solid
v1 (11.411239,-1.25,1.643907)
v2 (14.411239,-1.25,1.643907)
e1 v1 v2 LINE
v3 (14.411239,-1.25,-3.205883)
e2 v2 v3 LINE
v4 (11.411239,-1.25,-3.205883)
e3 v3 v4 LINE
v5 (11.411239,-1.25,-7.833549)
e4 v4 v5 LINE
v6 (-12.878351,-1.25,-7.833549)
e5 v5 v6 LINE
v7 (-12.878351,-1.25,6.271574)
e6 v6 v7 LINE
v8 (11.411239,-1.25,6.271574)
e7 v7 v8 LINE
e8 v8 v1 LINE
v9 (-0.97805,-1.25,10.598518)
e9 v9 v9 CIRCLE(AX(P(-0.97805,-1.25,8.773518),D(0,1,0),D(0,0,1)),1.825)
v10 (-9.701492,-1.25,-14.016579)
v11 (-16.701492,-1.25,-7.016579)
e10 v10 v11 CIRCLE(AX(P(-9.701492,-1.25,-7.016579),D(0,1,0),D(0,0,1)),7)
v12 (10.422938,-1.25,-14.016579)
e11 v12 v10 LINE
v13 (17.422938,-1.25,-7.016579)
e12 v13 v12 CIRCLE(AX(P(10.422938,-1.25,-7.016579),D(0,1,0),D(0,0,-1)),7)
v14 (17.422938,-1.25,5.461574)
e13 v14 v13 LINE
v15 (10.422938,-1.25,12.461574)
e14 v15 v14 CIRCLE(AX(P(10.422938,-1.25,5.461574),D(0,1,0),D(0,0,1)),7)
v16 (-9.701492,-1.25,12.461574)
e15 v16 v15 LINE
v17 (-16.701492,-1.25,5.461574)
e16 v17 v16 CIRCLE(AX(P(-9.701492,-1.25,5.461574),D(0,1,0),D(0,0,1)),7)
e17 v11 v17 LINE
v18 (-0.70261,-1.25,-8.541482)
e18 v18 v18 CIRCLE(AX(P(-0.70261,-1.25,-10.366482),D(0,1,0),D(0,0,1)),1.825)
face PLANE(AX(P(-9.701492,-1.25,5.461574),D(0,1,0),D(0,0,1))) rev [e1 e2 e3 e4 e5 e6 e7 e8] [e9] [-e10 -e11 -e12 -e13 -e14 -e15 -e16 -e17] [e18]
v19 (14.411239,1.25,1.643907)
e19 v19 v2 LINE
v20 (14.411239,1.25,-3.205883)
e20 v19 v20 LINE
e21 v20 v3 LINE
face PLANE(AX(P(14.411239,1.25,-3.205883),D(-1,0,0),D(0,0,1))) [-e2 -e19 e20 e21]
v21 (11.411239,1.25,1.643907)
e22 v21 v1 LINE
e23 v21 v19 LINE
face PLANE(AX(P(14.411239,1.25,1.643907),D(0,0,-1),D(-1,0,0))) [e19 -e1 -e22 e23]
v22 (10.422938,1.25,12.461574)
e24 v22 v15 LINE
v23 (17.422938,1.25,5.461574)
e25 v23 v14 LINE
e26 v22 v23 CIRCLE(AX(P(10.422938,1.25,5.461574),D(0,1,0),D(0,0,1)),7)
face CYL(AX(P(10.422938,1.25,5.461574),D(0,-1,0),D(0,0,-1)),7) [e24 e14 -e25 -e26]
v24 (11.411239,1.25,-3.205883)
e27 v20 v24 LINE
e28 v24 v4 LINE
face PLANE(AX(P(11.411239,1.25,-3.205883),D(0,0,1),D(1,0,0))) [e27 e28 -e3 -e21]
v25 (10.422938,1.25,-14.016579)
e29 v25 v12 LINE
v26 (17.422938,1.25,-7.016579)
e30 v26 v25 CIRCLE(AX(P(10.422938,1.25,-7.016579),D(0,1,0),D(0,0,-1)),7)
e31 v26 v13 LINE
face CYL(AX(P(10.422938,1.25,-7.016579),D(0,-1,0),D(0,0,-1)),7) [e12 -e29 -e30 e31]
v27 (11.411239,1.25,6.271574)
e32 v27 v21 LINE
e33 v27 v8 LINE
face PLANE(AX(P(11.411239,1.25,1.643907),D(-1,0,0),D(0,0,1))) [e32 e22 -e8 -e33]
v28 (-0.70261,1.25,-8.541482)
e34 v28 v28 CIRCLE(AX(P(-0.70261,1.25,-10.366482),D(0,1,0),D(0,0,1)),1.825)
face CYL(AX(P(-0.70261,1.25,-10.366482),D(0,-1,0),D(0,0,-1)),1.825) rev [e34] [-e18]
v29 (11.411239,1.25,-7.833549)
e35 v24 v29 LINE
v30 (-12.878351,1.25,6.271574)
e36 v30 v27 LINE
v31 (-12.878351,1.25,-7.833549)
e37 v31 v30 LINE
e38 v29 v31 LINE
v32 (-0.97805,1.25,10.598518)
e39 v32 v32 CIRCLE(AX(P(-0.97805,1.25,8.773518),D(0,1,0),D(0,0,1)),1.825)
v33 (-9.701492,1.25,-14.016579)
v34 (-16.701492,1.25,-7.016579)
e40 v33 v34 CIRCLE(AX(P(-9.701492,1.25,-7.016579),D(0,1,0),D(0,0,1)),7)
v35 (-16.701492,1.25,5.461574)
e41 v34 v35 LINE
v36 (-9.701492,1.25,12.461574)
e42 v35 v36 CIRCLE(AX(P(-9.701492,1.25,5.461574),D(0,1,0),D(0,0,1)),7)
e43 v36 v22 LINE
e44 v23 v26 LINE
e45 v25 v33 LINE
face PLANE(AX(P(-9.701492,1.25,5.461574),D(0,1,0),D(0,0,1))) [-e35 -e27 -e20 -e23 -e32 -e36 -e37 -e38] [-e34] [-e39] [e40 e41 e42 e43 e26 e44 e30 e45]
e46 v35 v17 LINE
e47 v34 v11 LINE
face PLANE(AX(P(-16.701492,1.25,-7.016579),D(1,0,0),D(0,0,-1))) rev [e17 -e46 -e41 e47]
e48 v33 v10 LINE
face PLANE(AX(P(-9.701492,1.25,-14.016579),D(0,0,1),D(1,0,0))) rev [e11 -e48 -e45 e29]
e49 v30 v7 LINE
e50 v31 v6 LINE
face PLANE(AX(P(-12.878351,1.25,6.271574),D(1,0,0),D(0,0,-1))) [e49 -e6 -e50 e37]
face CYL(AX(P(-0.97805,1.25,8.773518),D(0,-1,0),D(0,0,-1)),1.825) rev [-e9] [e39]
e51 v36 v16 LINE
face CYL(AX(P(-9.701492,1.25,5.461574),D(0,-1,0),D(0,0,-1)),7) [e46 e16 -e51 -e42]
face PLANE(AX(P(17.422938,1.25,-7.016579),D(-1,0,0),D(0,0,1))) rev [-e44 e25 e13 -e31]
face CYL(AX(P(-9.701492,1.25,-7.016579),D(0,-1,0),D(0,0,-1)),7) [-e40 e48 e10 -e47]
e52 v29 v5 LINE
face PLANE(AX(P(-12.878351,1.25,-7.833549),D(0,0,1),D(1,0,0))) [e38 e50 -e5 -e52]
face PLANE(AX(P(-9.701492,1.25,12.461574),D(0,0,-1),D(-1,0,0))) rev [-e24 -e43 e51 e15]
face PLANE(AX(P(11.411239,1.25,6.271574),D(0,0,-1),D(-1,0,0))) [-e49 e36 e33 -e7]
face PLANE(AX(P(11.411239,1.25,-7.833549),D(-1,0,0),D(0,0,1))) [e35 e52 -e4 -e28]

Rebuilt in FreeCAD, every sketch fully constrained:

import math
import FreeCAD as App
import Part
import Sketcher
Q = App.Units.Quantity


def add_polygon(sketch, points):
    """Adds a closed chain of lines whose ends are joined by coincident constraints."""
    first, n = sketch.GeometryCount, len(points)
    for a, b in zip(points, points[1:] + points[:1]):
        sketch.addGeometry(Part.LineSegment(App.Vector(*a, 0), App.Vector(*b, 0)), False)
    for i in range(n):
        sketch.addConstraint(Sketcher.Constraint("Coincident", first + i, 2, first + (i + 1) % n, 1))

doc = App.newDocument("Part")
body = doc.addObject("PartDesign::Body", "Body")

sketch1 = body.newObject("Sketcher::SketchObject", "Sketch")
sketch1.AttachmentSupport = (doc.getObject("XZ_Plane"), [""])
sketch1.MapMode = "FlatFace"
sketch1.addGeometry(Part.LineSegment(App.Vector(10.4, -14, 0), App.Vector(-9.7, -14, 0)), False)
sketch1.addGeometry(Part.ArcOfCircle(Part.Circle(App.Vector(-9.7, -7, 0), App.Vector(0, 0, 1), 7), math.radians(180), math.radians(270)), False)
sketch1.addGeometry(Part.LineSegment(App.Vector(-16.7, -7, 0), App.Vector(-16.7, 5.5, 0)), False)
sketch1.addGeometry(Part.ArcOfCircle(Part.Circle(App.Vector(-9.7, 5.5, 0), App.Vector(0, 0, 1), 7), math.radians(90), math.radians(180)), False)
sketch1.addGeometry(Part.LineSegment(App.Vector(-9.7, 12.5, 0), App.Vector(10.4, 12.5, 0)), False)
sketch1.addGeometry(Part.ArcOfCircle(Part.Circle(App.Vector(10.4, 5.5, 0), App.Vector(0, 0, 1), 7), math.radians(0), math.radians(90)), False)
sketch1.addGeometry(Part.LineSegment(App.Vector(17.4, 5.5, 0), App.Vector(17.4, -7, 0)), False)
sketch1.addGeometry(Part.ArcOfCircle(Part.Circle(App.Vector(10.4, -7, 0), App.Vector(0, 0, 1), 7), math.radians(-90), math.radians(0)), False)
sketch1.addGeometry(Part.Circle(App.Vector(-1, 8.8, 0), App.Vector(0, 0, 1), 1.8), False)
add_polygon(sketch1, [(-12.9, -7.8), (11.4, -7.8), (11.4, -3.2), (14.4, -3.2), (14.4, 1.6), (11.4, 1.6), (11.4, 6.3), (-12.9, 6.3)])
sketch1.addGeometry(Part.Circle(App.Vector(-0.7, -10.4, 0), App.Vector(0, 0, 1), 1.8), False)
sketch1.addConstraint([
    Sketcher.Constraint("Tangent", 0, 2, 1, 2),
    Sketcher.Constraint("Tangent", 1, 1, 2, 1),
    Sketcher.Constraint("Tangent", 2, 2, 3, 2),
    Sketcher.Constraint("Tangent", 3, 1, 4, 1),
    Sketcher.Constraint("Tangent", 4, 2, 5, 2),
    Sketcher.Constraint("Tangent", 5, 1, 6, 1),
    Sketcher.Constraint("Tangent", 6, 2, 7, 2),
    Sketcher.Constraint("Tangent", 7, 1, 0, 1),
    Sketcher.Constraint("Horizontal", 0),
    Sketcher.Constraint("Vertical", 2),
    Sketcher.Constraint("Horizontal", 4),
    Sketcher.Constraint("Vertical", 6),
    Sketcher.Constraint("Horizontal", 9),
    Sketcher.Constraint("Vertical", 10),
    Sketcher.Constraint("Horizontal", 11),
    Sketcher.Constraint("Vertical", 12),
    Sketcher.Constraint("Horizontal", 13),
    Sketcher.Constraint("Vertical", 14),
    Sketcher.Constraint("Horizontal", 15),
    Sketcher.Constraint("Vertical", 16),
    Sketcher.Constraint("Equal", 1, 3),
    Sketcher.Constraint("Equal", 3, 5),
    Sketcher.Constraint("Equal", 5, 7),
    Sketcher.Constraint("Equal", 8, 17),
    Sketcher.Constraint("Vertical", 10, 2, 13, 2),
    Sketcher.Constraint("Equal", 10, 14),
    Sketcher.Constraint("Radius", 1, Q("7 mm")),
    Sketcher.Constraint("Diameter", 8, Q("3.65 mm")),
    Sketcher.Constraint("DistanceX", 11, 1, 11, 2, Q("3 mm")),
    Sketcher.Constraint("DistanceY", 17, 3, 8, 3, Q("19.14 mm")),
    Sketcher.Constraint("DistanceY", 5, 3, 14, 2, Q("0.81 mm")),
    Sketcher.Constraint("DistanceX", 0, 2, 0, 1, Q("20.12443 mm")),
    Sketcher.Constraint("DistanceX", 9, 1, 9, 2, Q("24.28959 mm")),
    Sketcher.Constraint("DistanceY", 12, 1, 12, 2, Q("4.84979 mm")),
    Sketcher.Constraint("DistanceX", 7, 3, 9, 2, Q("0.988301 mm")),
    Sketcher.Constraint("DistanceX", 15, 2, 8, 3, Q("11.900301 mm")),
    Sketcher.Constraint("DistanceY", 2, 1, 2, 2, Q("12.478153 mm")),
    Sketcher.Constraint("DistanceY", 10, 1, 10, 2, Q("4.627666 mm")),
    Sketcher.Constraint("DistanceX", 1, 3, -1, 1, Q("9.701492 mm")),
    Sketcher.Constraint("DistanceY", 1, 3, -1, 1, Q("7.016579 mm")),
    Sketcher.Constraint("DistanceY", -1, 1, 8, 3, Q("8.773518 mm")),
    Sketcher.Constraint("DistanceX", 17, 3, -1, 1, Q("0.70261 mm")),
])
pad1 = body.newObject("PartDesign::Pad", "Pad")
pad1.Profile = sketch1
pad1.Length = 2.5
pad1.Midplane = True

doc.recompute()
